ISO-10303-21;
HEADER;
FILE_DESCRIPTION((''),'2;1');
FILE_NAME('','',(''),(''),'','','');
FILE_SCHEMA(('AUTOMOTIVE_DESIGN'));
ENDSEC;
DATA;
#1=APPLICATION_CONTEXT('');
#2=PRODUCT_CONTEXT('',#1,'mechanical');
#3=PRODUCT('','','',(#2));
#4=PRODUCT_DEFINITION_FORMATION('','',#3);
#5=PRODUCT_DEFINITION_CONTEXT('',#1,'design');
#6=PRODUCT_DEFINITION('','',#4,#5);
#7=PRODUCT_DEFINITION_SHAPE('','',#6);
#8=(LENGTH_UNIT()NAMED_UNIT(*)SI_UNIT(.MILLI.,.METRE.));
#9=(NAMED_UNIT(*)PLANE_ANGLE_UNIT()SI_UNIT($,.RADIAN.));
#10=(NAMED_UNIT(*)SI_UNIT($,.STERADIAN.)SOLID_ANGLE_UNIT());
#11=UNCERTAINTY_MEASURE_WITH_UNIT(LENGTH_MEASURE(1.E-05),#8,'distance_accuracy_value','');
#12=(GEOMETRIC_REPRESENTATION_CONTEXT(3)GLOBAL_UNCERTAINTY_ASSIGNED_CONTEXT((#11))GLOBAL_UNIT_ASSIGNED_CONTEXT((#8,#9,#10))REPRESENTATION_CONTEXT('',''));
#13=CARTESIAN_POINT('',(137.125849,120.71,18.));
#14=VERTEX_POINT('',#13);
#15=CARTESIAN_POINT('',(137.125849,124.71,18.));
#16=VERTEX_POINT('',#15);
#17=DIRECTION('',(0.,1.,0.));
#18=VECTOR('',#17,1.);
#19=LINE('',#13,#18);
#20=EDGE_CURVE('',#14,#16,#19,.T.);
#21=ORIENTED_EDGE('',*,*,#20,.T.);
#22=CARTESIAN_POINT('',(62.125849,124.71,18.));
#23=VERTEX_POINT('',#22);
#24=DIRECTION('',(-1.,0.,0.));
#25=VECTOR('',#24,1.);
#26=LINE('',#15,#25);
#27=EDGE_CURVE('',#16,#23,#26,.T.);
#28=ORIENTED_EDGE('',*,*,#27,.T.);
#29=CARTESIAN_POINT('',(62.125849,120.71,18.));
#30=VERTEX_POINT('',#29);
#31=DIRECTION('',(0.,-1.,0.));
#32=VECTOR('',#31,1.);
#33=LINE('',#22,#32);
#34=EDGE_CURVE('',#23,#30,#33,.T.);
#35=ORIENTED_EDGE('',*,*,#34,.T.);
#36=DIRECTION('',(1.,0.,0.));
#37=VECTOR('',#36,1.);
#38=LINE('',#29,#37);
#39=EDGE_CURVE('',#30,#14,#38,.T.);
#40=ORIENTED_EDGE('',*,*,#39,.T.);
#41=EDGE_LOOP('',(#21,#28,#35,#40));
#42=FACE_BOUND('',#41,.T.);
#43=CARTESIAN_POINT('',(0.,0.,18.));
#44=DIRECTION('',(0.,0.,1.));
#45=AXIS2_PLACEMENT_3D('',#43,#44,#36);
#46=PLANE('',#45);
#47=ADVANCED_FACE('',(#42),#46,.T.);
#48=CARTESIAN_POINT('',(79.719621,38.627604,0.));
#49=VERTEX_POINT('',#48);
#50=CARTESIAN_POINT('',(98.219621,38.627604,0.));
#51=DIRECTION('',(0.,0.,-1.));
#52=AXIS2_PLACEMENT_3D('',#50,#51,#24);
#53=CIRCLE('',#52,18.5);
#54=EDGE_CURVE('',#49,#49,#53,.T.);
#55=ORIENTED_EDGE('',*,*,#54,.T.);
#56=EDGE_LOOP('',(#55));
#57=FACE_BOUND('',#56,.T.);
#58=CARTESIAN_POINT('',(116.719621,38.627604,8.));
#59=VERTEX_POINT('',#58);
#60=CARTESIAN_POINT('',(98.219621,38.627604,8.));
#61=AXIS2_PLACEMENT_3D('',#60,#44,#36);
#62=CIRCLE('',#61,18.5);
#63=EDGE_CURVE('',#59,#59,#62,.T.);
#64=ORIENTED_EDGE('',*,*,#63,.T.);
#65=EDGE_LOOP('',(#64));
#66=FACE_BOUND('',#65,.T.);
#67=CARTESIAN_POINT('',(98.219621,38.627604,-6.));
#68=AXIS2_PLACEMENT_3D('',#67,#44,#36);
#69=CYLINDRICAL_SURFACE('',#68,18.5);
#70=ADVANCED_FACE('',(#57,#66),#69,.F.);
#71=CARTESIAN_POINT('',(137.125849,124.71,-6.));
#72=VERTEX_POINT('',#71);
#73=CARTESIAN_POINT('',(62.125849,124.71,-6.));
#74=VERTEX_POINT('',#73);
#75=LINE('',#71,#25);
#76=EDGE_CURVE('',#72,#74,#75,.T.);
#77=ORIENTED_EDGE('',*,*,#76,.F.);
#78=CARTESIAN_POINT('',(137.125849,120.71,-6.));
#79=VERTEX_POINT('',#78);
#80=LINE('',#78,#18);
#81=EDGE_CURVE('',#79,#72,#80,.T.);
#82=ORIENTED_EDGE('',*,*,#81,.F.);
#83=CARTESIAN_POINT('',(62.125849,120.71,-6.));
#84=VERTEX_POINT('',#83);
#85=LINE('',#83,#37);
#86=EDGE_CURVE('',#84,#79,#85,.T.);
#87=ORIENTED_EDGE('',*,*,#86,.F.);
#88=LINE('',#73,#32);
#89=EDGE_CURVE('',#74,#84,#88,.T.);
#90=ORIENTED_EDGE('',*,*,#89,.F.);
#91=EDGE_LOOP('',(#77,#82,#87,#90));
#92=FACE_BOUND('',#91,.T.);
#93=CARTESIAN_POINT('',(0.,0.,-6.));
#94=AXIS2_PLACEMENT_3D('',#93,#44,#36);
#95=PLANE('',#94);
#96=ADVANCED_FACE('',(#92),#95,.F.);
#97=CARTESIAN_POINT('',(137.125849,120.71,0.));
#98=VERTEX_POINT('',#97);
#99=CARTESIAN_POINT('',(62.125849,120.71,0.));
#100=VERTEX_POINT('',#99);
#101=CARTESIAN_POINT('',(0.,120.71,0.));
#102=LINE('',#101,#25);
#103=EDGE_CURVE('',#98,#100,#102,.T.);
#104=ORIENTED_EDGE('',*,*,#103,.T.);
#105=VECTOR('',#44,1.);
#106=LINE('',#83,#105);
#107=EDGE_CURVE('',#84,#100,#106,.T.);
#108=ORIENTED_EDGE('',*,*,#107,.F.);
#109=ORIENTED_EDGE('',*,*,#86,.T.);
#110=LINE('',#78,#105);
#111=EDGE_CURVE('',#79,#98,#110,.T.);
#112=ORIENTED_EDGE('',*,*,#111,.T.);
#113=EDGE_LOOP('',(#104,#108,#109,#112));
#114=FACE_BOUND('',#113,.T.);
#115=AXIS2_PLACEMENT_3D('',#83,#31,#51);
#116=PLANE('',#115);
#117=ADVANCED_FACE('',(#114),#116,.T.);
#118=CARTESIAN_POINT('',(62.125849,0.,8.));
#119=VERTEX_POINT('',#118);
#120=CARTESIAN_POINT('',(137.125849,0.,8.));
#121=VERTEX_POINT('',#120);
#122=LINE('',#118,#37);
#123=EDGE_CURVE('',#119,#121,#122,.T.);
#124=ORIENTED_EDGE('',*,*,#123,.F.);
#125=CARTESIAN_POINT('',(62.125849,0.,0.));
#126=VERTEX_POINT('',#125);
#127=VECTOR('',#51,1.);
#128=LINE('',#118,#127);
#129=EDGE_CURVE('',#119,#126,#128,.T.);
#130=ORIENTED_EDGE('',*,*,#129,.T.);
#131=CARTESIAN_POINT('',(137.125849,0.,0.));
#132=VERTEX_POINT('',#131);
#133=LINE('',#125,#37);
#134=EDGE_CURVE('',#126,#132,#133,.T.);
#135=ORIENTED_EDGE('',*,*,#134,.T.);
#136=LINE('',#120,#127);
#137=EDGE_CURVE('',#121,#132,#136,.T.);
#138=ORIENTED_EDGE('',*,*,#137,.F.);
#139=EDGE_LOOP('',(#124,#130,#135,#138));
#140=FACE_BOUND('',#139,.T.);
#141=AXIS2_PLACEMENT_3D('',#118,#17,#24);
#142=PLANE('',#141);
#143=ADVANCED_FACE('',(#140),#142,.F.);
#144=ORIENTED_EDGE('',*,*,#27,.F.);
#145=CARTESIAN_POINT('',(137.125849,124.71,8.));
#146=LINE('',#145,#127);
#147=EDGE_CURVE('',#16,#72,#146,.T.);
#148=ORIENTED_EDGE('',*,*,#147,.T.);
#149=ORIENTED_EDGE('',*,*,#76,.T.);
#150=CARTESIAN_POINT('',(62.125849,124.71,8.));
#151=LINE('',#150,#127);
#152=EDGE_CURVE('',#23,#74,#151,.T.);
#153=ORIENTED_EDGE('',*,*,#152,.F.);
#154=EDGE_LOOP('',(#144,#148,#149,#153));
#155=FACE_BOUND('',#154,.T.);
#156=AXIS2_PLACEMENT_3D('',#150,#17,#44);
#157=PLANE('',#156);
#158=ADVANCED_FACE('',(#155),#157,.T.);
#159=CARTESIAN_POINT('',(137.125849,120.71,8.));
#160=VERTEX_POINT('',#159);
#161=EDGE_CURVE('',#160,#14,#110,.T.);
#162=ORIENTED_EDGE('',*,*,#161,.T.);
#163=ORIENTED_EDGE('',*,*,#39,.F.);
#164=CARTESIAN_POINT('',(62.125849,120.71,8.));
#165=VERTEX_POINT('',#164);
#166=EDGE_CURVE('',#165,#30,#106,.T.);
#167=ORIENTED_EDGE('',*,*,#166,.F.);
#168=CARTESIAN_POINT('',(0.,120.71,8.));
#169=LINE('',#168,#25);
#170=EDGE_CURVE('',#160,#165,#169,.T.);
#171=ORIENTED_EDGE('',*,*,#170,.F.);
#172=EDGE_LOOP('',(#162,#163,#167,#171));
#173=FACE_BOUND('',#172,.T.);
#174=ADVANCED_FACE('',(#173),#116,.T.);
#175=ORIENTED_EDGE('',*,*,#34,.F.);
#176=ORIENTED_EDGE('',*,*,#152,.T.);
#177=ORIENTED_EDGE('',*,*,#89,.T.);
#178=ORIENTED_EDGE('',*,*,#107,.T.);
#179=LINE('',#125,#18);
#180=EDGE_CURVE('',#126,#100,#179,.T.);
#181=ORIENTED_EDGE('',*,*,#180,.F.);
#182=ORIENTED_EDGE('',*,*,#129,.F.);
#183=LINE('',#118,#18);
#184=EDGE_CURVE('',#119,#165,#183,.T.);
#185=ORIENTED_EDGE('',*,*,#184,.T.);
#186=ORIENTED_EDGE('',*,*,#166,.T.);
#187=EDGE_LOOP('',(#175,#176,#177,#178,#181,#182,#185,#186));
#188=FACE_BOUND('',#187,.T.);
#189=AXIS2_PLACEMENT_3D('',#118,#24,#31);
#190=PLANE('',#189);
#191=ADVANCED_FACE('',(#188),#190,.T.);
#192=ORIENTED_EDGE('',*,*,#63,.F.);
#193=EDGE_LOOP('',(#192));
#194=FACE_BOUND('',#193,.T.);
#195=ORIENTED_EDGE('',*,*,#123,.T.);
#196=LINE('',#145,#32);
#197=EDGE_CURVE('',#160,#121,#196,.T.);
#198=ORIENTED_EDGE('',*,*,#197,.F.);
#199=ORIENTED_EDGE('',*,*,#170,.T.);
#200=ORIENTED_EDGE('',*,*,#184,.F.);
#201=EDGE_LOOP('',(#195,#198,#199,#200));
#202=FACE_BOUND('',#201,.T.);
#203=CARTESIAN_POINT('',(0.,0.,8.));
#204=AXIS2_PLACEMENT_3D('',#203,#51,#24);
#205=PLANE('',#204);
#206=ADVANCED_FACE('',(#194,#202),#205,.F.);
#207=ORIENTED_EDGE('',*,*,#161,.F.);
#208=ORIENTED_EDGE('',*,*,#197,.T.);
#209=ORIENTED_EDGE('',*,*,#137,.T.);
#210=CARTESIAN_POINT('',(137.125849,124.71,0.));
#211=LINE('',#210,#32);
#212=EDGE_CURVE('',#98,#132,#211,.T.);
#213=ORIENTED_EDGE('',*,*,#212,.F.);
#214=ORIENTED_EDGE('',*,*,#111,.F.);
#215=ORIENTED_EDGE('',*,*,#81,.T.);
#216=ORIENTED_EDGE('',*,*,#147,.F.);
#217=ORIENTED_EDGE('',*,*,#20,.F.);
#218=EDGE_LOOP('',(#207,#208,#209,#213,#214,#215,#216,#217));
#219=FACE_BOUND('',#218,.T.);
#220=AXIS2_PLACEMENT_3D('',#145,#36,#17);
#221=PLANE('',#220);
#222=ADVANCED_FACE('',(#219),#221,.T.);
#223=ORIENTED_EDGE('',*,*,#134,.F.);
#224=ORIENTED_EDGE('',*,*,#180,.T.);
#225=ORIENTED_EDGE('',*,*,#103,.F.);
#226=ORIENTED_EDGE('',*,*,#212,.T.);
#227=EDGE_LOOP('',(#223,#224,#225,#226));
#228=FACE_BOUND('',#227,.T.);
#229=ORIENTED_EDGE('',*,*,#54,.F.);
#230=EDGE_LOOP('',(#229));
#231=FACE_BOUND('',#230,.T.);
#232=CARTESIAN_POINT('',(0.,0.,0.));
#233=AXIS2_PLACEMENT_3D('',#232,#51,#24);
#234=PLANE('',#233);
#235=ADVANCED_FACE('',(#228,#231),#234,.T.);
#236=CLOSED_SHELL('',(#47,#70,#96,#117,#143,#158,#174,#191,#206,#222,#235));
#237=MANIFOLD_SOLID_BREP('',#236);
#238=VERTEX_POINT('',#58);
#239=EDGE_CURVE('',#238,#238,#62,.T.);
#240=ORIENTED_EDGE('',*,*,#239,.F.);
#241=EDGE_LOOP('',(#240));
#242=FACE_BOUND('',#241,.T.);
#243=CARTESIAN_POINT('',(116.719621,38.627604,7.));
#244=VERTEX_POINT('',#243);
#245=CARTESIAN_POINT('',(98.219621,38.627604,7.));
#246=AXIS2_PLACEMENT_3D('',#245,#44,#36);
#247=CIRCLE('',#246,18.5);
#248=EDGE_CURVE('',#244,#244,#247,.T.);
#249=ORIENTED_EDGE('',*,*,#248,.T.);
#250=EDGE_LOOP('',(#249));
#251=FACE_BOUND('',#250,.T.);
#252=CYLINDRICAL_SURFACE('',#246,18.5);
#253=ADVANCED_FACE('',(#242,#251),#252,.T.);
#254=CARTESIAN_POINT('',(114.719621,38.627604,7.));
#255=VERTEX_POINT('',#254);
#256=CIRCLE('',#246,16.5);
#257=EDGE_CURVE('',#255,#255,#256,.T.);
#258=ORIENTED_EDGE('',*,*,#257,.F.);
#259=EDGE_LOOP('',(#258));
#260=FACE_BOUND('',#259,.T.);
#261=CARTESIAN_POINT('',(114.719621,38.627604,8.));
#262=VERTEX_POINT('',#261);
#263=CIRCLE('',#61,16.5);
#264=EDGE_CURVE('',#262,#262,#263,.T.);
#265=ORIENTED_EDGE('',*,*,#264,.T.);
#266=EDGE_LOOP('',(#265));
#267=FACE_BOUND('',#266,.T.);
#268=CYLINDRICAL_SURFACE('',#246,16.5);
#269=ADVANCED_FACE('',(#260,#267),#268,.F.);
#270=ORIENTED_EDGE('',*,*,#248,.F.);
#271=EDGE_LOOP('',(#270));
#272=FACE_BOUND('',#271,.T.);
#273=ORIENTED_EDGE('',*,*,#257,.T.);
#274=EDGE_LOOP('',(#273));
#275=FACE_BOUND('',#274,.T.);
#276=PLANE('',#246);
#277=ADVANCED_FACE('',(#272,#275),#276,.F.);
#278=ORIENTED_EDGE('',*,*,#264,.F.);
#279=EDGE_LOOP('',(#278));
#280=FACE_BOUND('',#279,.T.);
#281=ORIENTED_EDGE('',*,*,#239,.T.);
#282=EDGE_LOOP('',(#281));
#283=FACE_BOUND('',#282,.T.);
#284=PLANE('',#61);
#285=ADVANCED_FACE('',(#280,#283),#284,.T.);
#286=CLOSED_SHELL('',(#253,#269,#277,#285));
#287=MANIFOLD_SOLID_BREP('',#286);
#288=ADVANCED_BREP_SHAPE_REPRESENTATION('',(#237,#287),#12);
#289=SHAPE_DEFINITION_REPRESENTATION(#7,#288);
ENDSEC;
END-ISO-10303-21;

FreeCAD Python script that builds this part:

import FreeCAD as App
import Part
import Sketcher

V = App.Vector
Q = App.Units.Quantity

doc = App.newDocument("Part")
params = doc.addObject("Spreadsheet::Sheet", "Params")
for row, (alias, value) in enumerate([
    ("sketch1_width", "75 mm"),
    ("sketch1_height", "124.71 mm"),
    ("pad1_length", "8 mm"),
    ("sketch2_width", "75 mm"),
    ("sketch2_height", "4 mm"),
    ("pad2_length", "10 mm"),
    ("pad2_length2", "14 mm"),
    ("sketch3_diameter", "37 mm"),
    ("sketch4_diameter", "37 mm"),
    ("sketch4_diameter2", "33 mm"),
    ("pad3_length", "1 mm"),
], start=1):
    params.set(f"A{row}", alias)
    params.set(f"B{row}", "=" + value)
    params.setAlias(f"B{row}", alias)

body = doc.addObject("PartDesign::Body", "Body")

sketch1 = doc.addObject("Sketcher::SketchObject", "Sketch")
body.addObject(sketch1)
sketch1.AttachmentSupport = (doc.XY_Plane, [""])
sketch1.MapMode = "FlatFace"
sketch1.addGeometry([
    Part.LineSegment(V(62, 125, 0), V(62, 0, 0)),
    Part.LineSegment(V(62, 0, 0), V(137, 0, 0)),
    Part.LineSegment(V(137, 0, 0), V(137, 125, 0)),
    Part.LineSegment(V(137, 125, 0), V(62, 125, 0)),
], False)
sketch1.addConstraint([
    Sketcher.Constraint("Coincident", 0, 2, 1, 1),
    Sketcher.Constraint("Coincident", 1, 2, 2, 1),
    Sketcher.Constraint("Coincident", 2, 2, 3, 1),
    Sketcher.Constraint("Coincident", 3, 2, 0, 1),
    Sketcher.Constraint("Vertical", 0),
    Sketcher.Constraint("Horizontal", 1),
    Sketcher.Constraint("Vertical", 2),
    Sketcher.Constraint("Horizontal", 3),
    Sketcher.Constraint("PointOnObject", 0, 2, -1),
    Sketcher.Constraint("DistanceX", 1, 1, 1, 2, Q("75 mm")),
    Sketcher.Constraint("DistanceY", 0, 2, 0, 1, Q("124.71 mm")),
    Sketcher.Constraint("DistanceX", -1, 1, 0, 2, Q("62.125849 mm")),
])
sketch1.setExpression("Constraints[9]", "Params.sketch1_width")
sketch1.setExpression("Constraints[10]", "Params.sketch1_height")
pad1 = doc.addObject("PartDesign::Pad", "Pad")
body.addObject(pad1)
pad1.Profile = sketch1
pad1.setExpression("Length", "Params.pad1_length")

sketch2 = doc.addObject("Sketcher::SketchObject", "Sketch001")
body.addObject(sketch2)
sketch2.AttachmentSupport = (doc.XY_Plane, [""])
sketch2.MapMode = "FlatFace"
sketch2.AttachmentOffset = App.Placement(V(0, 0, 8), App.Rotation())
sketch2.addGeometry([
    Part.LineSegment(V(62.1, 124.7, 0), V(62.1, 120.7, 0)),
    Part.LineSegment(V(62.1, 120.7, 0), V(137.1, 120.7, 0)),
    Part.LineSegment(V(137.1, 120.7, 0), V(137.1, 124.7, 0)),
    Part.LineSegment(V(137.1, 124.7, 0), V(62.1, 124.7, 0)),
], False)
sketch2.addConstraint([
    Sketcher.Constraint("Coincident", 0, 2, 1, 1),
    Sketcher.Constraint("Coincident", 1, 2, 2, 1),
    Sketcher.Constraint("Coincident", 2, 2, 3, 1),
    Sketcher.Constraint("Coincident", 3, 2, 0, 1),
    Sketcher.Constraint("Vertical", 0),
    Sketcher.Constraint("Horizontal", 1),
    Sketcher.Constraint("Vertical", 2),
    Sketcher.Constraint("Horizontal", 3),
    Sketcher.Constraint("DistanceX", 1, 1, 1, 2, Q("75 mm")),
    Sketcher.Constraint("DistanceY", 0, 2, 0, 1, Q("4 mm")),
    Sketcher.Constraint("DistanceY", -1, 1, 0, 2, Q("120.71 mm")),
    Sketcher.Constraint("DistanceX", -1, 1, 0, 2, Q("62.125849 mm")),
])
sketch2.setExpression("Constraints[8]", "Params.sketch2_width")
sketch2.setExpression("Constraints[9]", "Params.sketch2_height")
pad2 = doc.addObject("PartDesign::Pad", "Pad001")
body.addObject(pad2)
pad2.Profile = sketch2
pad2.Type = "TwoLengths"
pad2.setExpression("Length", "Params.pad2_length")
pad2.setExpression("Length2", "Params.pad2_length2")

sketch3 = doc.addObject("Sketcher::SketchObject", "Sketch002")
body.addObject(sketch3)
sketch3.AttachmentSupport = (doc.XY_Plane, [""])
sketch3.MapMode = "FlatFace"
sketch3.AttachmentOffset = App.Placement(V(0, 0, 8), App.Rotation())
sketch3.addGeometry(Part.Circle(V(98, 39, 0), V(0, 0, 1), 18), False)
sketch3.addConstraint([
    Sketcher.Constraint("Diameter", 0, Q("37 mm")),
    Sketcher.Constraint("DistanceX", -1, 1, 0, 3, Q("98.219621 mm")),
    Sketcher.Constraint("DistanceY", -1, 1, 0, 3, Q("38.627604 mm")),
])
sketch3.setExpression("Constraints[0]", "Params.sketch3_diameter")
pocket1 = doc.addObject("PartDesign::Pocket", "Pocket")
body.addObject(pocket1)
pocket1.Profile = sketch3
pocket1.Type = "ThroughAll"
body2 = doc.addObject("PartDesign::Body", "Body001")

sketch4 = doc.addObject("Sketcher::SketchObject", "Sketch003")
body2.addObject(sketch4)
sketch4.AttachmentSupport = (doc.getObject("XY_Plane001"), [""])
sketch4.MapMode = "FlatFace"
sketch4.AttachmentOffset = App.Placement(V(0, 0, 8), App.Rotation())
sketch4.addGeometry([
    Part.Circle(V(98, 39, 0), V(0, 0, 1), 18),
    Part.Circle(V(98, 39, 0), V(0, 0, 1), 16),
], False)
sketch4.addConstraint([
    Sketcher.Constraint("Coincident", 1, 3, 0, 3),
    Sketcher.Constraint("Diameter", 0, Q("37 mm")),
    Sketcher.Constraint("Diameter", 1, Q("33 mm")),
    Sketcher.Constraint("DistanceX", -1, 1, 0, 3, Q("98.219621 mm")),
    Sketcher.Constraint("DistanceY", -1, 1, 0, 3, Q("38.627604 mm")),
])
sketch4.setExpression("Constraints[1]", "Params.sketch4_diameter")
sketch4.setExpression("Constraints[2]", "Params.sketch4_diameter2")
pad3 = doc.addObject("PartDesign::Pad", "Pad002")
body2.addObject(pad3)
pad3.Profile = sketch4
pad3.setExpression("Length", "Params.pad3_length")
pad3.Reversed = True

doc.recompute()
